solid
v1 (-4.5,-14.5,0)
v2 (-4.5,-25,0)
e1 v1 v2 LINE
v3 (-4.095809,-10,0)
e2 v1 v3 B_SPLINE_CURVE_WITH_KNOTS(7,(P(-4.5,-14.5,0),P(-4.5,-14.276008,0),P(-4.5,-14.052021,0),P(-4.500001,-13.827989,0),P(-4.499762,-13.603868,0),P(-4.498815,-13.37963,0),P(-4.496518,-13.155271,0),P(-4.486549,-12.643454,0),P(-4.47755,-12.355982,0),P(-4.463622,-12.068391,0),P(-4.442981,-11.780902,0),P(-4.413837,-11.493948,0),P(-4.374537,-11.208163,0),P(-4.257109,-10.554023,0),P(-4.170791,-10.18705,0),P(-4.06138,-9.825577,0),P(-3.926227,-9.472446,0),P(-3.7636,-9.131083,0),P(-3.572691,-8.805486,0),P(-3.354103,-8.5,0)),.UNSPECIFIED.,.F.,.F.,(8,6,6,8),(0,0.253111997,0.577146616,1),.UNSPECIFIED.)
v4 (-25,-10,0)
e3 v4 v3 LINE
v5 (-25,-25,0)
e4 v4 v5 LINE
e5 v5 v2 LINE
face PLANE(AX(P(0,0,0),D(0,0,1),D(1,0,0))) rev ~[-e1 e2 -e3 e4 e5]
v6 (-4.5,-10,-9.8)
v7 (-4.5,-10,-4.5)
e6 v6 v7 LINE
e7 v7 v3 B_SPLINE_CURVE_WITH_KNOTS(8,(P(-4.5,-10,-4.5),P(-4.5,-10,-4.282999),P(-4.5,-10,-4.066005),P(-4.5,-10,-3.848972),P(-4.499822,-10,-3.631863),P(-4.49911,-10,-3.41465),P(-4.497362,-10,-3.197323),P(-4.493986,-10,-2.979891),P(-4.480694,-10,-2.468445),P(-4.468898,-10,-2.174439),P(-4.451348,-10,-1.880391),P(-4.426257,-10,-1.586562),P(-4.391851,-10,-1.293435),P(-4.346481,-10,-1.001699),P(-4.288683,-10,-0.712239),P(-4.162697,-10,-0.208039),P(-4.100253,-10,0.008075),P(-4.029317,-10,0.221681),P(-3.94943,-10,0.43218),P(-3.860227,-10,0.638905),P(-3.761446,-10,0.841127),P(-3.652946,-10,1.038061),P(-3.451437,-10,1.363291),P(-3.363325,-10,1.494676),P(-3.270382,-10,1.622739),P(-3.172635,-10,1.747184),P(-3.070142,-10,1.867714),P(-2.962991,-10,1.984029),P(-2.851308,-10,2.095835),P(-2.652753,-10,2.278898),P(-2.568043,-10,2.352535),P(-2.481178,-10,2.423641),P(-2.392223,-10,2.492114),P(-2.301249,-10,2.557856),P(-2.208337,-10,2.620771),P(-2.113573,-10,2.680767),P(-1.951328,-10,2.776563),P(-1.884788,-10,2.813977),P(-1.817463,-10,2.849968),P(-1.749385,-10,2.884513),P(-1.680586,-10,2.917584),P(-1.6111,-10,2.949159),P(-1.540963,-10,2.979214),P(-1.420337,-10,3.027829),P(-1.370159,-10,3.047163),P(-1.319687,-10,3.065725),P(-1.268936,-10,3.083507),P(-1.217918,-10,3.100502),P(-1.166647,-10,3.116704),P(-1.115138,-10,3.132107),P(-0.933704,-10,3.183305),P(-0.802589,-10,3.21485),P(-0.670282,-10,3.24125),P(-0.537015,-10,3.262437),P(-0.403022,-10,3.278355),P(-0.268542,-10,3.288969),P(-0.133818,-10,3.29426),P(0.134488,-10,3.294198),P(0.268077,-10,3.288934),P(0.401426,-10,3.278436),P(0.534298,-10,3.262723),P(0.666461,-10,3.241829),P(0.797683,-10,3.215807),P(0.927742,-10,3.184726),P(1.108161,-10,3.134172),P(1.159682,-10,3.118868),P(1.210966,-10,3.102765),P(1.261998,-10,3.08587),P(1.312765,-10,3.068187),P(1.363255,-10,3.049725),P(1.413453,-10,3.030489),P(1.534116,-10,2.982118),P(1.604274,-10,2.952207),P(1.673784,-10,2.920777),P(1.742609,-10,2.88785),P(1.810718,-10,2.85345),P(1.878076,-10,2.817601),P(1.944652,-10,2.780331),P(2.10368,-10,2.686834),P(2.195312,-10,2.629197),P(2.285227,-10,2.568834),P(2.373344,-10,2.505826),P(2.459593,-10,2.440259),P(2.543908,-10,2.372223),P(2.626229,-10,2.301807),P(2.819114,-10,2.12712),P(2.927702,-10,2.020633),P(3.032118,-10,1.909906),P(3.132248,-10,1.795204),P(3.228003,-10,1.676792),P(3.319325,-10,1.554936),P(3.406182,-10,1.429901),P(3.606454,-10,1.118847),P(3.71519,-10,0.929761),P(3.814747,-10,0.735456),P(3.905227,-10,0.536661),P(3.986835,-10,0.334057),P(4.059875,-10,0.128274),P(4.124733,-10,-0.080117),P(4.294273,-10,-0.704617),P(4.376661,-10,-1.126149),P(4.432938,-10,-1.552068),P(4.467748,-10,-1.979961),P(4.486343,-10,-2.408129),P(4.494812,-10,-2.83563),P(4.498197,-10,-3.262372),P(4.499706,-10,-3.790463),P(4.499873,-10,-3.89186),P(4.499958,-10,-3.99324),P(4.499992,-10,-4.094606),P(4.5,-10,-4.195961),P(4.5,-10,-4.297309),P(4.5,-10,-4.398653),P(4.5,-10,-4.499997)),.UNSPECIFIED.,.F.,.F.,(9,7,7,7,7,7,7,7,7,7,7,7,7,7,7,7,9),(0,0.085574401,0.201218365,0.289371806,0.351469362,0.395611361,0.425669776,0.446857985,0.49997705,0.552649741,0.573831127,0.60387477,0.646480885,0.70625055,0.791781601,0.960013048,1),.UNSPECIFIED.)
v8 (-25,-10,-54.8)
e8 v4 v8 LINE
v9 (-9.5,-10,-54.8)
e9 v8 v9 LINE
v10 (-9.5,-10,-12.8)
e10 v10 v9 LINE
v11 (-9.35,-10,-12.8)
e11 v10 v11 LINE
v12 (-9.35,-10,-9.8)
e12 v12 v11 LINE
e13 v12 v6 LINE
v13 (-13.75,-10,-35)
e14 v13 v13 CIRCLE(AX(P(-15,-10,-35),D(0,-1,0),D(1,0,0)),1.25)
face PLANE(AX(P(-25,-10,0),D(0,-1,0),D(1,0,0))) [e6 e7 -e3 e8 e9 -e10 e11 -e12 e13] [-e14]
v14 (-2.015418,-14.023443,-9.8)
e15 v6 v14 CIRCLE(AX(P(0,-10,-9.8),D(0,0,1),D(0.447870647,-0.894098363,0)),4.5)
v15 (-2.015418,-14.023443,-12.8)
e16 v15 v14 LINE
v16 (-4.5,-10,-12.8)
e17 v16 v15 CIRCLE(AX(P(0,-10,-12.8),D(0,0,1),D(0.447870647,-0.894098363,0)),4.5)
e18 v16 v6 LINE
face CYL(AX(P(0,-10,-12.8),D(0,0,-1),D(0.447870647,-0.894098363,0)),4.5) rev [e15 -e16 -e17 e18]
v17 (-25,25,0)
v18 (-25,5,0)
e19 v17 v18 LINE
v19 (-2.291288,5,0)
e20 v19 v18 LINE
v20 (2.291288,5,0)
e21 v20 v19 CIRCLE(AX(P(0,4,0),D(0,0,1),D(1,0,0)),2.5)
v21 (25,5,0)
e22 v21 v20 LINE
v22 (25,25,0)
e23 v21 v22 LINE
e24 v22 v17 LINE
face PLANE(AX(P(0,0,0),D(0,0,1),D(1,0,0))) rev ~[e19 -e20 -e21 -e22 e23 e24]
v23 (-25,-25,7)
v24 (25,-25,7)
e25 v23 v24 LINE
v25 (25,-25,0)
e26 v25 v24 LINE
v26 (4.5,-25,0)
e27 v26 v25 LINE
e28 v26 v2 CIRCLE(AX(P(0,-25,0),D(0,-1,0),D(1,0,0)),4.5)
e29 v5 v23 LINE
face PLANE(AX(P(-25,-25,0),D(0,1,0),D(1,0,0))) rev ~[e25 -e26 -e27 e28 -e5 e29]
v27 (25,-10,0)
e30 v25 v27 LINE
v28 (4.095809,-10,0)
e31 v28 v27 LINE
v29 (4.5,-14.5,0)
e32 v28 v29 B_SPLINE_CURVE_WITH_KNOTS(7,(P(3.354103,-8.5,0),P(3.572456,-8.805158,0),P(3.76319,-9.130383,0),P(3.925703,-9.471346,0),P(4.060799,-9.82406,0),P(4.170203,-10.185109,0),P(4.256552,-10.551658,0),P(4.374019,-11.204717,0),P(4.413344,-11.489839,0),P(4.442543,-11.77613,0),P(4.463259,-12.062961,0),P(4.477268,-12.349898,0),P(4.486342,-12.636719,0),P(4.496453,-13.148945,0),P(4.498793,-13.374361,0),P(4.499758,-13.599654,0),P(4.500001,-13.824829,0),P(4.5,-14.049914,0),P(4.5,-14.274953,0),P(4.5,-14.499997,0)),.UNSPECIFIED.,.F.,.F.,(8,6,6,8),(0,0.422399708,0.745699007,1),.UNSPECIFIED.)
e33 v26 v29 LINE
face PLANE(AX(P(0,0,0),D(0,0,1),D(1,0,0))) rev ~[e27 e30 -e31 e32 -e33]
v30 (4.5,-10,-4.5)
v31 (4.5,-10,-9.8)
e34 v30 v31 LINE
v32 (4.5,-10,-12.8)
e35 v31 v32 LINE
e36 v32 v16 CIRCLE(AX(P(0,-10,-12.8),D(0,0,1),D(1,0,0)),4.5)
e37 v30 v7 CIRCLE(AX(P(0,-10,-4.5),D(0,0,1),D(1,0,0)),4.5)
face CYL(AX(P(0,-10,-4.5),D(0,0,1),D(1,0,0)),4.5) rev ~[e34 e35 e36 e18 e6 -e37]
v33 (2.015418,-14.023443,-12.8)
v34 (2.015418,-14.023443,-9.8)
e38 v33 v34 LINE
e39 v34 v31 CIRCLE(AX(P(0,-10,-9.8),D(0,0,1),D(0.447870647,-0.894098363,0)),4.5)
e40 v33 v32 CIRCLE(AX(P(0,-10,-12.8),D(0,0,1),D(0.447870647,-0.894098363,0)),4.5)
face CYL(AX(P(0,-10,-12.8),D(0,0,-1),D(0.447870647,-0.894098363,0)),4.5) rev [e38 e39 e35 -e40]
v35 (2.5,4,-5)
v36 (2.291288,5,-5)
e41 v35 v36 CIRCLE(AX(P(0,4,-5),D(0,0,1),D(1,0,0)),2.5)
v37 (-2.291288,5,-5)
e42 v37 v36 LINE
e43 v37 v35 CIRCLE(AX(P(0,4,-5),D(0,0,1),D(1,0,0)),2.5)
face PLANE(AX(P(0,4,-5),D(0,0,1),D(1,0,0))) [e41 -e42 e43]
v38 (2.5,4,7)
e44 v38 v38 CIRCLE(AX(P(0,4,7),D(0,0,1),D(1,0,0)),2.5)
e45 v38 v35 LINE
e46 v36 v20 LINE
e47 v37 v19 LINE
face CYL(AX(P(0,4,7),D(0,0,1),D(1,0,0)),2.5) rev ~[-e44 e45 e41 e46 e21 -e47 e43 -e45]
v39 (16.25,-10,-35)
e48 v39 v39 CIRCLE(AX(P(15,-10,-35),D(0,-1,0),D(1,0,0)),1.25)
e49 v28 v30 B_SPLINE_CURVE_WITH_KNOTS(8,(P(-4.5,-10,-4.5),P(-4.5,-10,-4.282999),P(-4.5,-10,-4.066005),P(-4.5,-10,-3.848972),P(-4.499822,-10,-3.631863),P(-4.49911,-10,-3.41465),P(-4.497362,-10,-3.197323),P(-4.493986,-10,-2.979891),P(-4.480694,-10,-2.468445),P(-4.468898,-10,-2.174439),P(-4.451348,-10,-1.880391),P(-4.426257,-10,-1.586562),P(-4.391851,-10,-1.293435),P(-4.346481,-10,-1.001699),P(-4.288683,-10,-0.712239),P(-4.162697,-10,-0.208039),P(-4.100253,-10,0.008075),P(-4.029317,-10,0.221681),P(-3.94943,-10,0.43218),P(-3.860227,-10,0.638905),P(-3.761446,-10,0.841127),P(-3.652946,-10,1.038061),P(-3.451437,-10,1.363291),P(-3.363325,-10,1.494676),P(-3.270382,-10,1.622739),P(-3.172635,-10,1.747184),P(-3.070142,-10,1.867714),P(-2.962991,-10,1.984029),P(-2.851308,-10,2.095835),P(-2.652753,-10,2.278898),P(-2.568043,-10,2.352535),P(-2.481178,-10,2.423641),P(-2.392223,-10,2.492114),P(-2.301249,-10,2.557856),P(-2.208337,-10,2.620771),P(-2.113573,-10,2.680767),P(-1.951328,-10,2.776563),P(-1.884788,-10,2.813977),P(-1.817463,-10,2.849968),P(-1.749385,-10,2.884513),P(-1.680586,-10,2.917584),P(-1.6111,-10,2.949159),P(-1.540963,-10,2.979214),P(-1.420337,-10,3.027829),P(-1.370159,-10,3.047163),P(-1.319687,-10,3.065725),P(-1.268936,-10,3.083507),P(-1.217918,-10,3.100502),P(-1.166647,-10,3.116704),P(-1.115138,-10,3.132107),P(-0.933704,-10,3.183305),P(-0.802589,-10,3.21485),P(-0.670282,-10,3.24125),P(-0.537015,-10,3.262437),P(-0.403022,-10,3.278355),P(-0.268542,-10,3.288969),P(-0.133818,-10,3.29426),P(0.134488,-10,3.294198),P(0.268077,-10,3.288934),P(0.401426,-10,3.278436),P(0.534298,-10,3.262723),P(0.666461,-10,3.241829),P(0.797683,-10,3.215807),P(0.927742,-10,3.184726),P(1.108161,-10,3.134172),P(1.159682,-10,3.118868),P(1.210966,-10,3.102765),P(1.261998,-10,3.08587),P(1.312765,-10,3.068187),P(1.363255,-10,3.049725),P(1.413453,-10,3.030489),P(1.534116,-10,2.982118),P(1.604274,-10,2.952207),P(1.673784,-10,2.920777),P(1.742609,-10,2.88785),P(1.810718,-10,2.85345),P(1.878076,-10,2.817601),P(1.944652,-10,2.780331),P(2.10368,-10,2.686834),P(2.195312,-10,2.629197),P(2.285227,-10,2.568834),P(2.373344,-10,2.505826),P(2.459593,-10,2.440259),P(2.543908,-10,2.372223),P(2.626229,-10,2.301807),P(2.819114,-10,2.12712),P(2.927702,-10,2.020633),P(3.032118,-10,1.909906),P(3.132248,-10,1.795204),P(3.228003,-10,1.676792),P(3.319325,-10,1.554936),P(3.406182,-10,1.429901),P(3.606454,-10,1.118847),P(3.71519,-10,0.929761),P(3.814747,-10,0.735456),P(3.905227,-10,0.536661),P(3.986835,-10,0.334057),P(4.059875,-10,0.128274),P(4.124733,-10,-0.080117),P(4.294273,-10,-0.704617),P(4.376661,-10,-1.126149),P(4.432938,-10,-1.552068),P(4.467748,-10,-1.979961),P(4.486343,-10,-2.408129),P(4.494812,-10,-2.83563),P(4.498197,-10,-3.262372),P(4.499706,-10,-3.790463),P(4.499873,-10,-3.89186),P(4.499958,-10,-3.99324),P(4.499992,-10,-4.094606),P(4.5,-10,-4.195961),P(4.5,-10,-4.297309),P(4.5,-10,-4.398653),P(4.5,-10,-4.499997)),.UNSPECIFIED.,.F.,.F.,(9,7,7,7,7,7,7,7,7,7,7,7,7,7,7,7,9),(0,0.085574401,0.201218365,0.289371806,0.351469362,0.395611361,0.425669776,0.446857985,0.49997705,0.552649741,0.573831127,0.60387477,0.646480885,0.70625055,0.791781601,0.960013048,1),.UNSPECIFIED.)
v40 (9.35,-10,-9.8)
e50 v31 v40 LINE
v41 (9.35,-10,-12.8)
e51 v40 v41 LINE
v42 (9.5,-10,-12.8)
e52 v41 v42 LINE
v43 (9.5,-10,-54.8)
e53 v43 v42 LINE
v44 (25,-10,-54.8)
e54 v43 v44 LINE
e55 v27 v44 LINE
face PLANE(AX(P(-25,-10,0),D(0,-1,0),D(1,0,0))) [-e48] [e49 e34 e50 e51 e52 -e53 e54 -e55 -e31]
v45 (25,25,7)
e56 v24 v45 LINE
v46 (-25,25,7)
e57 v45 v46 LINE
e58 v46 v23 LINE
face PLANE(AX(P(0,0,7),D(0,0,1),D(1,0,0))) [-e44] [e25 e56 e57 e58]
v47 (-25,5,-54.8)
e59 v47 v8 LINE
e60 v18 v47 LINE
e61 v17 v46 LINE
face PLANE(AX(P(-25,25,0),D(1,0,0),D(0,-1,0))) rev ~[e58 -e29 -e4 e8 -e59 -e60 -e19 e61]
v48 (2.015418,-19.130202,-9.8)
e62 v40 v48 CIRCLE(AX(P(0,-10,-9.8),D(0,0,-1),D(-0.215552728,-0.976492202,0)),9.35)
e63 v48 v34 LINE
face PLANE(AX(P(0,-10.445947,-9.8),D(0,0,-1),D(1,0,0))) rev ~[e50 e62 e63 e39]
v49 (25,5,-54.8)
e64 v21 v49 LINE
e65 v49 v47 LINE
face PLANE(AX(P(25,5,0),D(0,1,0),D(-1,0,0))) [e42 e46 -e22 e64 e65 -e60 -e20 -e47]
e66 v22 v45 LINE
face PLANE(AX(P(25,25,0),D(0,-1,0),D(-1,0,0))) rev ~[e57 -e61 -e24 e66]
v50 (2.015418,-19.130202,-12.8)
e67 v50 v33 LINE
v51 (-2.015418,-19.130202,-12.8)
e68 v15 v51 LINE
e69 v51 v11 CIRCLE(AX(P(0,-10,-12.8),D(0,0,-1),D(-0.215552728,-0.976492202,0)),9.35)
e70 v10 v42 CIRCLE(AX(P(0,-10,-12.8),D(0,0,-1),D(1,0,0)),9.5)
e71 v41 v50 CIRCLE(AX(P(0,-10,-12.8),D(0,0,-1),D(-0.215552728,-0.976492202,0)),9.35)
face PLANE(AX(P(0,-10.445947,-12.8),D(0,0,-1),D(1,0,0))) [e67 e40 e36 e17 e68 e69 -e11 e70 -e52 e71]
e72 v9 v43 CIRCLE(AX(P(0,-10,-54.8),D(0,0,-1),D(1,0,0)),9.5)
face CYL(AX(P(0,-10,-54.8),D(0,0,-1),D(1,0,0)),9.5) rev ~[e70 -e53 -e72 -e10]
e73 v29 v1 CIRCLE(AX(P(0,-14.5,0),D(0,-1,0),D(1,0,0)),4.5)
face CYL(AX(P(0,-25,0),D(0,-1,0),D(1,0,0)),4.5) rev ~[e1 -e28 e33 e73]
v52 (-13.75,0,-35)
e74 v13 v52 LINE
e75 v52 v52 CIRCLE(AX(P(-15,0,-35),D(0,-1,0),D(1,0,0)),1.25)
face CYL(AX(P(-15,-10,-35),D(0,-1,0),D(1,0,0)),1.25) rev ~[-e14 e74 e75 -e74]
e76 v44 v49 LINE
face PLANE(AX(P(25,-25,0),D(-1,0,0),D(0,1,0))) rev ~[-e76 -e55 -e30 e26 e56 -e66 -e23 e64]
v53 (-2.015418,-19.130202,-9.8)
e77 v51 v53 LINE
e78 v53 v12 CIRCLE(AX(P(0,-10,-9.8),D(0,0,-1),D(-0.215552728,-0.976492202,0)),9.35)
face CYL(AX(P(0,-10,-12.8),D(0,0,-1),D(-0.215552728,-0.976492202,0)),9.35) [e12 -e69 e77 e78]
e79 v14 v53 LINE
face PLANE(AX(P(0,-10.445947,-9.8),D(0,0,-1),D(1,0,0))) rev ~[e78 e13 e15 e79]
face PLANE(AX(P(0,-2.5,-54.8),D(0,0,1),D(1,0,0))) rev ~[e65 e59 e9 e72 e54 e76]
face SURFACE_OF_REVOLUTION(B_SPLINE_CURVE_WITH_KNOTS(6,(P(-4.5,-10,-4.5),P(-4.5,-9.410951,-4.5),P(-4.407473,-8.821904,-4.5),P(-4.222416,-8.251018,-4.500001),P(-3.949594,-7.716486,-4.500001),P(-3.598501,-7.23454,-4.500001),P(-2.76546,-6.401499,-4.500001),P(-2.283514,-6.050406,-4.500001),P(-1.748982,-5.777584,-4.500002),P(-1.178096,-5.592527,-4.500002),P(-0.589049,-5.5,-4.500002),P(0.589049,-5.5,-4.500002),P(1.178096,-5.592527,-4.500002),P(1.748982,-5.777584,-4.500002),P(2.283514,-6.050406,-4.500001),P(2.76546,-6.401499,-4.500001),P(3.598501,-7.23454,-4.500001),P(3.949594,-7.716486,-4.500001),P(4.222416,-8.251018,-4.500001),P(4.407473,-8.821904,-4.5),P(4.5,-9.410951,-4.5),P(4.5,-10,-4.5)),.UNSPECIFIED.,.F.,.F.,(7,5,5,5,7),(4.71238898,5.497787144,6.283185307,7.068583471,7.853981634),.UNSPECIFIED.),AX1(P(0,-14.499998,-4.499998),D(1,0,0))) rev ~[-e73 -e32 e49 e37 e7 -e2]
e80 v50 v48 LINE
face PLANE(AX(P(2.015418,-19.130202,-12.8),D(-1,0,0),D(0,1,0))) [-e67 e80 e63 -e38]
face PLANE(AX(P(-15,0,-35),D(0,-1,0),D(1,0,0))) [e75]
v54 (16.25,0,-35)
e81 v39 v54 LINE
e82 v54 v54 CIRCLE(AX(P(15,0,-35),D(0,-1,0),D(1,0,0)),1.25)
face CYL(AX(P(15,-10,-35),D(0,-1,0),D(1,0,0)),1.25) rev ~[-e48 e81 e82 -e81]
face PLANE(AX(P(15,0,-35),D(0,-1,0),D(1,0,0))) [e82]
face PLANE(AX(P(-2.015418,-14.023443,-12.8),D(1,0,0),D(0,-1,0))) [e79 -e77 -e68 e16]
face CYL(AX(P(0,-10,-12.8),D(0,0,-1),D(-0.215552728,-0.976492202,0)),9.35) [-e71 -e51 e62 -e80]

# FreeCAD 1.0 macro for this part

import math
import FreeCAD as App
import Part
import Sketcher


def add_polygon(sketch, points):
    """Adds a closed chain of lines whose ends are joined by coincident constraints."""
    first, n = sketch.GeometryCount, len(points)
    for a, b in zip(points, points[1:] + points[:1]):
        sketch.addGeometry(Part.LineSegment(App.Vector(*a, 0), App.Vector(*b, 0)), False)
    for i in range(n):
        sketch.addConstraint(Sketcher.Constraint("Coincident", first + i, 2, first + (i + 1) % n, 1))

doc = App.newDocument("Part")
body = doc.addObject("PartDesign::Body", "Body")

sketch1 = body.newObject("Sketcher::SketchObject", "Sketch")
sketch1.AttachmentSupport = (doc.getObject("XY_Plane"), [""])
sketch1.MapMode = "FlatFace"
add_polygon(sketch1, [(-25, -25), (25, -25), (25, 25), (-25, 25)])
sketch1.addConstraint([
    Sketcher.Constraint("Horizontal", 0),
    Sketcher.Constraint("Vertical", 1),
    Sketcher.Constraint("Horizontal", 2),
    Sketcher.Constraint("Vertical", 3),
    Sketcher.Constraint("Symmetric", 0, 2, 2, 2, -1, 1),
    Sketcher.Constraint("Equal", 2, 1),
    Sketcher.Constraint("DistanceX", 0, 1, 0, 2, 50.0),
])
pad1 = body.newObject("PartDesign::Pad", "Pad")
pad1.Profile = sketch1
pad1.Length = 7

sketch2 = body.newObject("Sketcher::SketchObject", "Sketch001")
sketch2.AttachmentSupport = (doc.getObject("XY_Plane"), [""])
sketch2.MapMode = "FlatFace"
add_polygon(sketch2, [(-25, -10), (25, -10), (25, 5), (-25, 5)])
sketch2.addConstraint([
    Sketcher.Constraint("Horizontal", 0),
    Sketcher.Constraint("Vertical", 1),
    Sketcher.Constraint("Horizontal", 2),
    Sketcher.Constraint("Vertical", 3),
    Sketcher.Constraint("DistanceX", 0, 1, 0, 2, 50.0),
    Sketcher.Constraint("DistanceY", 1, 1, 1, 2, 15.0),
    Sketcher.Constraint("DistanceX", -1, 1, 0, 2, 25.0),
    Sketcher.Constraint("DistanceY", 0, 2, -1, 1, 10.0),
])
pad2 = body.newObject("PartDesign::Pad", "Pad001")
pad2.Profile = sketch2
pad2.Length = 54.8
pad2.Reversed = True

sketch3 = body.newObject("Sketcher::SketchObject", "Sketch002")
sketch3.AttachmentSupport = (doc.getObject("XY_Plane"), [""])
sketch3.MapMode = "FlatFace"
sketch3.AttachmentOffset = App.Placement(App.Vector(0, 0, -54.8), App.Rotation())
sketch3.addGeometry(Part.Circle(App.Vector(0, -10, 0), App.Vector(0, 0, 1), 9.5), False)
sketch3.addConstraint([
    Sketcher.Constraint("PointOnObject", 0, 3, -2),
    Sketcher.Constraint("Diameter", 0, 19.0),
    Sketcher.Constraint("DistanceY", 0, 3, -1, 1, 10.0),
])
pocket1 = body.newObject("PartDesign::Pocket", "Pocket")
pocket1.Profile = sketch3
pocket1.Length = 42
pocket1.Reversed = True

sketch4 = body.newObject("Sketcher::SketchObject", "Sketch003")
sketch4.AttachmentSupport = (doc.getObject("XY_Plane"), [""])
sketch4.MapMode = "FlatFace"
sketch4.AttachmentOffset = App.Placement(App.Vector(0, 0, -4.5), App.Rotation())
sketch4.addGeometry(Part.Circle(App.Vector(0, -10, 0), App.Vector(0, 0, 1), 4.5), False)
sketch4.addConstraint([
    Sketcher.Constraint("PointOnObject", 0, 3, -2),
    Sketcher.Constraint("Diameter", 0, 9.0),
    Sketcher.Constraint("DistanceY", 0, 3, -1, 1, 10.0),
])
pocket2 = body.newObject("PartDesign::Pocket", "Pocket001")
pocket2.Profile = sketch4
pocket2.Length = 25

sketch5 = body.newObject("Sketcher::SketchObject", "Sketch004")
sketch5.AttachmentSupport = (doc.getObject("XZ_Plane"), [""])
sketch5.MapMode = "FlatFace"
sketch5.AttachmentOffset = App.Placement(App.Vector(0, 0, 25), App.Rotation())
sketch5.addGeometry(Part.Circle(App.Vector(0, 0, 0), App.Vector(0, 0, 1), 4.5), False)
sketch5.addConstraint([
    Sketcher.Constraint("Coincident", 0, 3, -1, 1),
    Sketcher.Constraint("Diameter", 0, 9.0),
])
pocket3 = body.newObject("PartDesign::Pocket", "Pocket002")
pocket3.Profile = sketch5
pocket3.Length = 10.5

sketch6 = body.newObject("Sketcher::SketchObject", "Sketch005")
sketch6.AttachmentSupport = (doc.getObject("XY_Plane"), [""])
sketch6.MapMode = "FlatFace"
sketch6.AttachmentOffset = App.Placement(App.Vector(0, 0, -4.5), App.Rotation())
sketch6.addGeometry(Part.Circle(App.Vector(0, -10, 0), App.Vector(0, 0, 1), 4.5), False)
sketch6.addConstraint([
    Sketcher.Constraint("PointOnObject", 0, 3, -2),
    Sketcher.Constraint("Diameter", 0, 9.0),
    Sketcher.Constraint("DistanceY", 0, 3, -1, 1, 10.0),
])

sketch7 = body.newObject("Sketcher::SketchObject", "Sketch006")
sketch7.AttachmentSupport = (doc.getObject("YZ_Plane"), [""])
sketch7.MapMode = "FlatFace"
sketch7.addGeometry(Part.ArcOfCircle(Part.Circle(App.Vector(-14.499998, -4.499998, 0), App.Vector(0, 0, 1), 4.499998), math.radians(-0.000021), math.radians(90.000021)), False)
sketch7.addConstraint([
    Sketcher.Constraint("PointOnObject", 0, 2, -1),
    Sketcher.Constraint("Radius", 0, 4.499998),
    Sketcher.Constraint("DistanceX", 0, 1, -1, 1, 10.0),
    Sketcher.Constraint("DistanceY", 0, 1, -1, 1, 4.5),
    Sketcher.Constraint("DistanceX", 0, 2, -1, 1, 14.5),
])
doc.recompute()

subtractivepipe = body.newObject("PartDesign::SubtractivePipe", "SubtractivePipe")
subtractivepipe.Profile = sketch6
subtractivepipe.Spine = (sketch7, ["Edge1"])

sketch8 = body.newObject("Sketcher::SketchObject", "Sketch007")
sketch8.AttachmentSupport = (doc.getObject("XZ_Plane"), [""])
sketch8.MapMode = "FlatFace"
sketch8.AttachmentOffset = App.Placement(App.Vector(0, 0, 10), App.Rotation())
sketch8.addGeometry([
    Part.Circle(App.Vector(15, -35, 0), App.Vector(0, 0, 1), 1.25),
    Part.Circle(App.Vector(-15, -35, 0), App.Vector(0, 0, 1), 1.25),
], False)
sketch8.addConstraint([
    Sketcher.Constraint("Equal", 0, 1),
    Sketcher.Constraint("Symmetric", 0, 3, 1, 3, -2),
    Sketcher.Constraint("Diameter", 0, 2.5),
    Sketcher.Constraint("DistanceX", -1, 1, 0, 3, 15.0),
    Sketcher.Constraint("DistanceY", 0, 3, -1, 1, 35.0),
])
pocket4 = body.newObject("PartDesign::Pocket", "Pocket003")
pocket4.Profile = sketch8
pocket4.Length = 10

sketch9 = body.newObject("Sketcher::SketchObject", "Sketch008")
sketch9.AttachmentSupport = (doc.getObject("XY_Plane"), [""])
sketch9.MapMode = "FlatFace"
sketch9.AttachmentOffset = App.Placement(App.Vector(0, 0, -12.8), App.Rotation())
sketch9.addGeometry([
    Part.LineSegment(App.Vector(-2.015418, -14.023443, 0), App.Vector(-2.015418, -19.130202, 0)),
    Part.ArcOfCircle(Part.Circle(App.Vector(0, -10, 0), App.Vector(0, 0, 1), 9.35), math.radians(-77.552043), math.radians(257.552043)),
    Part.LineSegment(App.Vector(2.015418, -19.130202, 0), App.Vector(2.015418, -14.023443, 0)),
    Part.ArcOfCircle(Part.Circle(App.Vector(0, -10, 0), App.Vector(0, 0, 1), 4.5), math.radians(-63.392851), math.radians(243.392851)),
], False)
sketch9.addConstraint([
    Sketcher.Constraint("Coincident", 0, 2, 1, 2),
    Sketcher.Constraint("Coincident", 1, 1, 2, 1),
    Sketcher.Constraint("Coincident", 2, 2, 3, 1),
    Sketcher.Constraint("Coincident", 3, 2, 0, 1),
    Sketcher.Constraint("Vertical", 0),
    Sketcher.Constraint("Vertical", 2),
    Sketcher.Constraint("Coincident", 3, 3, 1, 3),
    Sketcher.Constraint("Symmetric", 0, 2, 1, 1, -2),
    Sketcher.Constraint("Radius", 3, 4.5),
    Sketcher.Constraint("Radius", 1, 9.35),
    Sketcher.Constraint("DistanceY", 1, 3, -1, 1, 10.0),
    Sketcher.Constraint("DistanceY", 0, 2, 0, 1, 5.106759),
])
pad3 = body.newObject("PartDesign::Pad", "Pad002")
pad3.Profile = sketch9
pad3.Length = 3

sketch10 = body.newObject("Sketcher::SketchObject", "Sketch009")
sketch10.AttachmentSupport = (doc.getObject("XY_Plane"), [""])
sketch10.MapMode = "FlatFace"
sketch10.AttachmentOffset = App.Placement(App.Vector(0, 0, 7), App.Rotation())
sketch10.addGeometry(Part.Circle(App.Vector(0, 4, 0), App.Vector(0, 0, 1), 2.5), False)
sketch10.addConstraint([
    Sketcher.Constraint("PointOnObject", 0, 3, -2),
    Sketcher.Constraint("Diameter", 0, 5.0),
    Sketcher.Constraint("DistanceY", -1, 1, 0, 3, 4.0),
])
pocket5 = body.newObject("PartDesign::Pocket", "Pocket004")
pocket5.Profile = sketch10
pocket5.Length = 12

doc.recompute()
